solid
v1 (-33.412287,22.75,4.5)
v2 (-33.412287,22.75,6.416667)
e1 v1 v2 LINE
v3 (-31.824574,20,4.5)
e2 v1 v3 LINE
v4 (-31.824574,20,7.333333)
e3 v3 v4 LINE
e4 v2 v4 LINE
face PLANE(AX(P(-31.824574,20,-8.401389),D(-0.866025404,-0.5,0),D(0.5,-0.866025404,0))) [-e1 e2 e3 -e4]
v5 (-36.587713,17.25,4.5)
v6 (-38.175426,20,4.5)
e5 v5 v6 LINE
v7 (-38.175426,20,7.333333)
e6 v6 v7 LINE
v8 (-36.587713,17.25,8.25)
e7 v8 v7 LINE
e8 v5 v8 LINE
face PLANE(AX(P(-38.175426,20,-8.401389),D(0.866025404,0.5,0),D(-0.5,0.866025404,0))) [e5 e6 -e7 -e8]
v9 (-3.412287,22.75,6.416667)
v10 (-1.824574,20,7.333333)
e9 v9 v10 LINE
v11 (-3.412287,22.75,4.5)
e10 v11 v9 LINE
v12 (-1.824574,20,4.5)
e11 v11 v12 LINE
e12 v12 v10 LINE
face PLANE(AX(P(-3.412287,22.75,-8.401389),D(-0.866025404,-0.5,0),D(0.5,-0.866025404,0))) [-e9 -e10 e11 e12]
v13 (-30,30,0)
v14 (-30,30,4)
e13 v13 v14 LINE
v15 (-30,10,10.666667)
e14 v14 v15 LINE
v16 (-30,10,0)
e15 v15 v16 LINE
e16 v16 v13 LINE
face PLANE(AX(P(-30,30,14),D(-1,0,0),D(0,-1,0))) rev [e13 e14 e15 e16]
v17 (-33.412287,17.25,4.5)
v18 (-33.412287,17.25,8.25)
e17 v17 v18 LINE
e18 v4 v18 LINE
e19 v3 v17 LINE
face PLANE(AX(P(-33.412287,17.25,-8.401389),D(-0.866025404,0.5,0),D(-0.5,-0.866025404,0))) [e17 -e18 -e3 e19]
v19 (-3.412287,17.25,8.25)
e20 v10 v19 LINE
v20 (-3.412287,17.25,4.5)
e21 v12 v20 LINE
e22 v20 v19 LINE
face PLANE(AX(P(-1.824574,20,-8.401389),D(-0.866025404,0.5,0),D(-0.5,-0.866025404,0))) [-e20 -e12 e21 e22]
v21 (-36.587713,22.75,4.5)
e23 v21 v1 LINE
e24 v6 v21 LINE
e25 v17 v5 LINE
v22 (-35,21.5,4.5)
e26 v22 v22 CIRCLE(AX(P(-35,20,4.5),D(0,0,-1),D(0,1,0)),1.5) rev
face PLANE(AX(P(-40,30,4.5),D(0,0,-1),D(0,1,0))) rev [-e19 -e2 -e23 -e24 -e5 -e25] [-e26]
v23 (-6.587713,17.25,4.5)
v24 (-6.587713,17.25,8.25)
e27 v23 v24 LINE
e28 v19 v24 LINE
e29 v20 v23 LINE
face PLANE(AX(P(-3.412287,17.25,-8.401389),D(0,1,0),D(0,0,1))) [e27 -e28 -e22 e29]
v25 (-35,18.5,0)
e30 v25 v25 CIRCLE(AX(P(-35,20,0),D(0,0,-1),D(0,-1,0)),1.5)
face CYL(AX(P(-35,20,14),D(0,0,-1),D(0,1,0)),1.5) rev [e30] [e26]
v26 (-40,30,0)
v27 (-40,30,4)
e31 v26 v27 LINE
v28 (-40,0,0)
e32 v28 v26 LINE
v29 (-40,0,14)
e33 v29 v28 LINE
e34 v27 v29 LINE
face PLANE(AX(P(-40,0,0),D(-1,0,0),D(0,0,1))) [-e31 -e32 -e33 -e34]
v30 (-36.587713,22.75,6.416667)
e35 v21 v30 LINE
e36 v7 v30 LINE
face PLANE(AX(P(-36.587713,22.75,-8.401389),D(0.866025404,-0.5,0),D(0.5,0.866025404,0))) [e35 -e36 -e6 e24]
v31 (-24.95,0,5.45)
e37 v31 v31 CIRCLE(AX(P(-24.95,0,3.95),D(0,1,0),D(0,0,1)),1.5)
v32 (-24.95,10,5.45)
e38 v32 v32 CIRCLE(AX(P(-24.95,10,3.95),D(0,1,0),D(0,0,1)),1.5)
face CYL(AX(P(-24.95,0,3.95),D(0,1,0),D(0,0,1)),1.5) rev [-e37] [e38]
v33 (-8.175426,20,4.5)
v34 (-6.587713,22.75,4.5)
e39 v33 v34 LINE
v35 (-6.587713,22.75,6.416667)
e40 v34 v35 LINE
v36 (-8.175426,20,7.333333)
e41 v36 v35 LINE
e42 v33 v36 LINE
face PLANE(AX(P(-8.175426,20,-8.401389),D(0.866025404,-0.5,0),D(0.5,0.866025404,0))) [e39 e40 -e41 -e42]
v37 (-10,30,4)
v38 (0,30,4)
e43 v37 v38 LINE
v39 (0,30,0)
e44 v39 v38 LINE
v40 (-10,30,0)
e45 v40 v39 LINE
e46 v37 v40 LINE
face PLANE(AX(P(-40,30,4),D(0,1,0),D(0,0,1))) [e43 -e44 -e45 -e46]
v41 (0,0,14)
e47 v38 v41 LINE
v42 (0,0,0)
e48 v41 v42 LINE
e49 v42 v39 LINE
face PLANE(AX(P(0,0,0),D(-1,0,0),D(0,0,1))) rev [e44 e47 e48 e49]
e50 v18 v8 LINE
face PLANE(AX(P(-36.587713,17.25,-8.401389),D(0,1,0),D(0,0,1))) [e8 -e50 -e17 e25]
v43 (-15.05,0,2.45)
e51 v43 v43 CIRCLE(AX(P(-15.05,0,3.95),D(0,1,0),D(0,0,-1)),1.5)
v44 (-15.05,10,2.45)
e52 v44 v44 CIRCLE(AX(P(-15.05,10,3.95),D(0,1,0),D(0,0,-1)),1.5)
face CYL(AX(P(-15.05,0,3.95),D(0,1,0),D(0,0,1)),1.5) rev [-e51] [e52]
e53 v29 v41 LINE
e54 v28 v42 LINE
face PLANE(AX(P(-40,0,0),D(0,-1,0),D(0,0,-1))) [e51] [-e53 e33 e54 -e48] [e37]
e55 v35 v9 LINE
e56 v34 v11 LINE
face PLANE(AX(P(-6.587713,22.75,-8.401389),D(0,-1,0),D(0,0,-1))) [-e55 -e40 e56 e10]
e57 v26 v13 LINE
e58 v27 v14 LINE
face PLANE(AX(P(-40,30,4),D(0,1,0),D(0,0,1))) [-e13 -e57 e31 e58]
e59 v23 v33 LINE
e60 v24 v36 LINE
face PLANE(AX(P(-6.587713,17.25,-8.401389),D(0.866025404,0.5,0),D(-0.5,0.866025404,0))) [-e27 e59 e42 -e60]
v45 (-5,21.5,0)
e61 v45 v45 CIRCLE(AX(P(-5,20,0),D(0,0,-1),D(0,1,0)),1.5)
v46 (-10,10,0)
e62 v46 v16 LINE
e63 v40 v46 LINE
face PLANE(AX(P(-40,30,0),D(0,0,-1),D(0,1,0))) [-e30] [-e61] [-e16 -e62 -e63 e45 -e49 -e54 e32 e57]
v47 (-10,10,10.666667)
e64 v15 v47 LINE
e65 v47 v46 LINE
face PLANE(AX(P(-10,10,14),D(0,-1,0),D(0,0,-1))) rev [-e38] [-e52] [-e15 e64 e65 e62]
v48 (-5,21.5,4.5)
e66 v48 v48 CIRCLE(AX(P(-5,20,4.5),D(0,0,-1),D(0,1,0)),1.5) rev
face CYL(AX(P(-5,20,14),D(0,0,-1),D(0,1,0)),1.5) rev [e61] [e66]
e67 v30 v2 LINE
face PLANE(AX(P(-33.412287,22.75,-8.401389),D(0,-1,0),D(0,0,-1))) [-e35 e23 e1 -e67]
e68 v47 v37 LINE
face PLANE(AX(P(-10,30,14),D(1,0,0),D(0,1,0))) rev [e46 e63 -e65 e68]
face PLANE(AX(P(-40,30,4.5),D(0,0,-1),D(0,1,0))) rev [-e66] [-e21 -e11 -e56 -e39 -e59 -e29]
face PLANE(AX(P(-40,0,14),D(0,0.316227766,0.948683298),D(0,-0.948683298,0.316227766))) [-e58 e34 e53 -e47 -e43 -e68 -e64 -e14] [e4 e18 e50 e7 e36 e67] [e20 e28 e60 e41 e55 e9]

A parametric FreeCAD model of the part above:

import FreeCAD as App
import Part
import Sketcher

V = App.Vector
Q = App.Units.Quantity

doc = App.newDocument("Part")
body = doc.addObject("PartDesign::Body", "Body")

# Sketch on YZ plane
sketch1 = doc.addObject("Sketcher::SketchObject", "Sketch")
body.addObject(sketch1)
sketch1.AttachmentSupport = (doc.YZ_Plane, [""])
sketch1.MapMode = "FlatFace"
sketch1.addGeometry([
    Part.LineSegment(V(0, 14, 0), V(0, 0, 0)),
    Part.LineSegment(V(0, 0, 0), V(30, 0, 0)),
    Part.LineSegment(V(30, 0, 0), V(30, 4, 0)),
    Part.LineSegment(V(30, 4, 0), V(0, 14, 0)),
], False)
sketch1.addConstraint([
    Sketcher.Constraint("Coincident", 0, 2, 1, 1),
    Sketcher.Constraint("Coincident", 1, 2, 2, 1),
    Sketcher.Constraint("Coincident", 2, 2, 3, 1),
    Sketcher.Constraint("Coincident", 3, 2, 0, 1),
    Sketcher.Constraint("Vertical", 0),
    Sketcher.Constraint("Horizontal", 1),
    Sketcher.Constraint("Vertical", 2),
    Sketcher.Constraint("Coincident", 0, 2, -1, 1),
    Sketcher.Constraint("DistanceX", 1, 1, 1, 2, 30.0),
    Sketcher.Constraint("DistanceY", 0, 2, 0, 1, 14.0),
    Sketcher.Constraint("DistanceY", 2, 1, 2, 2, 4.0),
])
pad1 = doc.addObject("PartDesign::Pad", "Pad")
body.addObject(pad1)
pad1.Profile = sketch1
pad1.Length = 40
pad1.Reversed = True

# Sketch on XY plane
sketch2 = doc.addObject("Sketcher::SketchObject", "Sketch001")
body.addObject(sketch2)
sketch2.AttachmentSupport = (doc.XY_Plane, [""])
sketch2.MapMode = "FlatFace"
sketch2.addGeometry([
    Part.LineSegment(V(-10, 30, 0), V(-10, 10, 0)),
    Part.LineSegment(V(-10, 10, 0), V(-30, 10, 0)),
    Part.LineSegment(V(-30, 10, 0), V(-30, 30, 0)),
    Part.LineSegment(V(-30, 30, 0), V(-10, 30, 0)),
], False)
sketch2.addConstraint([
    Sketcher.Constraint("Coincident", 0, 2, 1, 1),
    Sketcher.Constraint("Coincident", 1, 2, 2, 1),
    Sketcher.Constraint("Coincident", 2, 2, 3, 1),
    Sketcher.Constraint("Coincident", 3, 2, 0, 1),
    Sketcher.Constraint("Vertical", 0),
    Sketcher.Constraint("Horizontal", 1),
    Sketcher.Constraint("Vertical", 2),
    Sketcher.Constraint("Horizontal", 3),
    Sketcher.Constraint("Equal", 3, 0),
    Sketcher.Constraint("DistanceX", 1, 2, 1, 1, 20.0),
    Sketcher.Constraint("DistanceX", 0, 2, -1, 1, 10.0),
    Sketcher.Constraint("DistanceY", -1, 1, 0, 2, 10.0),
])
pocket1 = doc.addObject("PartDesign::Pocket", "Pocket")
body.addObject(pocket1)
pocket1.Profile = sketch2
pocket1.Type = "ThroughAll"
pocket1.Reversed = True

# Sketch on XY plane
sketch3 = doc.addObject("Sketcher::SketchObject", "Sketch002")
body.addObject(sketch3)
sketch3.AttachmentSupport = (doc.XY_Plane, [""])
sketch3.MapMode = "FlatFace"
sketch3.addGeometry([
    Part.Circle(V(-5, 20, 0), V(0, 0, 1), 1.5),
    Part.Circle(V(-35, 20, 0), V(0, 0, 1), 1.5),
], False)
sketch3.addConstraint([
    Sketcher.Constraint("Equal", 0, 1),
    Sketcher.Constraint("Horizontal", 0, 3, 1, 3),
    Sketcher.Constraint("Diameter", 0, 3.0),
    Sketcher.Constraint("DistanceX", 0, 3, -1, 1, 5.0),
    Sketcher.Constraint("DistanceY", -1, 1, 0, 3, 20.0),
    Sketcher.Constraint("DistanceX", 1, 3, -1, 1, 35.0),
])
pocket2 = doc.addObject("PartDesign::Pocket", "Pocket001")
body.addObject(pocket2)
pocket2.Profile = sketch3
pocket2.Type = "ThroughAll"
pocket2.Reversed = True

# Sketch on XZ plane
sketch4 = doc.addObject("Sketcher::SketchObject", "Sketch003")
body.addObject(sketch4)
sketch4.AttachmentSupport = (doc.XZ_Plane, [""])
sketch4.MapMode = "FlatFace"
sketch4.AttachmentOffset = App.Placement(V(0, 0, -10), App.Rotation())
sketch4.addGeometry([
    Part.Circle(V(-24.9, 4, 0), V(0, 0, 1), 1.5),
    Part.Circle(V(-15.1, 4, 0), V(0, 0, 1), 1.5),
], False)
sketch4.addConstraint([
    Sketcher.Constraint("Equal", 0, 1),
    Sketcher.Constraint("Horizontal", 0, 3, 1, 3),
    Sketcher.Constraint("Diameter", 0, 3.0),
    Sketcher.Constraint("DistanceX", 0, 3, 1, 3, 9.9),
    Sketcher.Constraint("DistanceX", 0, 3, -1, 1, 24.95),
    Sketcher.Constraint("DistanceY", -1, 1, 0, 3, 3.95),
])
pocket3 = doc.addObject("PartDesign::Pocket", "Pocket002")
body.addObject(pocket3)
pocket3.Profile = sketch4
pocket3.Type = "ThroughAll"
pocket3.Reversed = True

# Sketch on XY plane
sketch5 = doc.addObject("Sketcher::SketchObject", "Sketch004")
body.addObject(sketch5)
sketch5.AttachmentSupport = (doc.XY_Plane, [""])
sketch5.MapMode = "FlatFace"
sketch5.AttachmentOffset = App.Placement(V(0, 0, 14), App.Rotation())
sketch5.addGeometry([
    Part.LineSegment(V(-6.6, 17.2, 0), V(-8.2, 20, 0)),  # 0
    Part.LineSegment(V(-8.2, 20, 0), V(-6.6, 22.8, 0)),  # 1
    Part.LineSegment(V(-6.6, 22.8, 0), V(-3.4, 22.8, 0)),  # 2
    Part.LineSegment(V(-3.4, 22.8, 0), V(-1.8, 20, 0)),  # 3
    Part.LineSegment(V(-1.8, 20, 0), V(-3.4, 17.2, 0)),  # 4
    Part.LineSegment(V(-3.4, 17.2, 0), V(-6.6, 17.2, 0)),  # 5
    Part.LineSegment(V(-33.4, 17.2, 0), V(-36.6, 17.2, 0)),  # 6
    Part.LineSegment(V(-36.6, 17.2, 0), V(-38.2, 20, 0)),  # 7
    Part.LineSegment(V(-38.2, 20, 0), V(-36.6, 22.8, 0)),  # 8
    Part.LineSegment(V(-36.6, 22.8, 0), V(-33.4, 22.8, 0)),  # 9
    Part.LineSegment(V(-33.4, 22.8, 0), V(-31.8, 20, 0)),  # 10
    Part.LineSegment(V(-31.8, 20, 0), V(-33.4, 17.2, 0)),  # 11
], False)
sketch5.addConstraint([
    Sketcher.Constraint("Coincident", 0, 2, 1, 1),
    Sketcher.Constraint("Coincident", 1, 2, 2, 1),
    Sketcher.Constraint("Coincident", 2, 2, 3, 1),
    Sketcher.Constraint("Coincident", 3, 2, 4, 1),
    Sketcher.Constraint("Coincident", 4, 2, 5, 1),
    Sketcher.Constraint("Coincident", 5, 2, 0, 1),
    Sketcher.Constraint("Coincident", 6, 2, 7, 1),
    Sketcher.Constraint("Coincident", 7, 2, 8, 1),
    Sketcher.Constraint("Coincident", 8, 2, 9, 1),
    Sketcher.Constraint("Coincident", 9, 2, 10, 1),
    Sketcher.Constraint("Coincident", 10, 2, 11, 1),
    Sketcher.Constraint("Coincident", 11, 2, 6, 1),
    Sketcher.Constraint("Horizontal", 2),
    Sketcher.Constraint("Horizontal", 5),
    Sketcher.Constraint("Horizontal", 6),
    Sketcher.Constraint("Horizontal", 9),
    Sketcher.Constraint("Parallel", 0, 3),
    Sketcher.Constraint("Parallel", 1, 4),
    Sketcher.Constraint("Parallel", 3, 7),
    Sketcher.Constraint("Parallel", 4, 8),
    Sketcher.Constraint("Parallel", 7, 10),
    Sketcher.Constraint("Parallel", 8, 11),
    Sketcher.Constraint("Horizontal", 0, 2, 3, 2),
    Sketcher.Constraint("Horizontal", 5, 2, 6, 2),
    Sketcher.Constraint("Horizontal", 3, 2, 7, 2),
    Sketcher.Constraint("Horizontal", 2, 2, 8, 2),
    Sketcher.Constraint("Horizontal", 7, 2, 10, 2),
    Sketcher.Constraint("Vertical", 2, 2, 4, 2),
    Sketcher.Constraint("Vertical", 1, 2, 5, 2),
    Sketcher.Constraint("Equal", 5, 6),
    Sketcher.Constraint("Angle", 0, Q("120 deg")),
    Sketcher.Constraint("DistanceY", -1, 1, 0, 2, 20.0),
    Sketcher.Constraint("DistanceX", 6, 2, 5, 2, 30.0),
    Sketcher.Constraint("DistanceY", 4, 2, 2, 2, 5.5),
    Sketcher.Constraint("DistanceX", 2, 1, 2, 2, 3.175426),
    Sketcher.Constraint("DistanceX", 0, 2, -1, 1, 8.175426),
])
pocket4 = doc.addObject("PartDesign::Pocket", "Pocket003")
body.addObject(pocket4)
pocket4.Profile = sketch5
pocket4.Length = 9.5

doc.recompute()
